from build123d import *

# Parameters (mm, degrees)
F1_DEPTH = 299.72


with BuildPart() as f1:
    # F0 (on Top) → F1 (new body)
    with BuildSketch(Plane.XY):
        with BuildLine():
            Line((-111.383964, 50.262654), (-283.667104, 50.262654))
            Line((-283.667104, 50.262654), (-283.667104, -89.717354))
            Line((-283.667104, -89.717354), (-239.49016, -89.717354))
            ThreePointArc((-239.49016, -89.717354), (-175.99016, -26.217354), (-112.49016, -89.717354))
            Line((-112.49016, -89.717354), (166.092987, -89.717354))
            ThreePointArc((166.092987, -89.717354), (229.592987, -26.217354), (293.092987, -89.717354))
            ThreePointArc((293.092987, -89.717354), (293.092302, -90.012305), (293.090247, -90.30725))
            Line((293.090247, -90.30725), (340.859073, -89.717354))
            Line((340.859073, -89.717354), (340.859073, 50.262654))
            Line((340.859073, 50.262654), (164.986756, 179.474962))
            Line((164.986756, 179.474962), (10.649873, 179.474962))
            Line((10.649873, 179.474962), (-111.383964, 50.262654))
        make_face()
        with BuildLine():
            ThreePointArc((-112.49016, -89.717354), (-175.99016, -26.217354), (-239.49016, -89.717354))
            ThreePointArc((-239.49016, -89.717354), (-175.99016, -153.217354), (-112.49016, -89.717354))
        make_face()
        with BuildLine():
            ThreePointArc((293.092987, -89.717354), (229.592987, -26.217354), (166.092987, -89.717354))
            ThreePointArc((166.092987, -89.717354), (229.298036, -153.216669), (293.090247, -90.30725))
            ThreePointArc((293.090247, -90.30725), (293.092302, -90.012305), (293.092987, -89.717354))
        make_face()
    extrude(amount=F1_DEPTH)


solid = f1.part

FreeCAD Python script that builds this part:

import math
import FreeCAD as App
import Part
import Sketcher

V = App.Vector
Q = App.Units.Quantity

doc = App.newDocument("Part")
body = doc.addObject("PartDesign::Body", "Body")

# Sketch on XY plane
sketch1 = body.newObject("Sketcher::SketchObject", "Sketch")
sketch1.AttachmentSupport = (doc.getObject("XY_Plane"), [""])
sketch1.MapMode = "FlatFace"
sketch1.addGeometry([
    Part.LineSegment(V(-111, 50, 0), V(-284, 50, 0)),  # 0
    Part.LineSegment(V(-284, 50, 0), V(-284, -90, 0)),  # 1
    Part.LineSegment(V(-284, -90, 0), V(-239, -90, 0)),  # 2
    Part.ArcOfCircle(Part.Circle(V(-176, -90, 0), V(0, 0, 1), 64), math.radians(180), math.radians(360)),  # 3
    Part.LineSegment(V(-112, -90, 0), V(166, -90, 0)),  # 4
    Part.ArcOfCircle(Part.Circle(V(230, -90, 0), V(0, 0, 1), 64), math.radians(-180), math.radians(-1)),  # 5
    Part.LineSegment(V(293, -90, 0), V(341, -90, 0)),  # 6
    Part.LineSegment(V(341, -90, 0), V(341, 50, 0)),  # 7
    Part.LineSegment(V(341, 50, 0), V(165, 179, 0)),  # 8
    Part.LineSegment(V(165, 179, 0), V(11, 179, 0)),  # 9
    Part.LineSegment(V(11, 179, 0), V(-111, 50, 0)),  # 10
], False)
sketch1.addConstraint([
    Sketcher.Constraint("Coincident", 0, 2, 1, 1),
    Sketcher.Constraint("Coincident", 1, 2, 2, 1),
    Sketcher.Constraint("Coincident", 2, 2, 3, 1),
    Sketcher.Constraint("Coincident", 3, 2, 4, 1),
    Sketcher.Constraint("Coincident", 4, 2, 5, 1),
    Sketcher.Constraint("Coincident", 5, 2, 6, 1),
    Sketcher.Constraint("Coincident", 6, 2, 7, 1),
    Sketcher.Constraint("Coincident", 7, 2, 8, 1),
    Sketcher.Constraint("Coincident", 8, 2, 9, 1),
    Sketcher.Constraint("Coincident", 9, 2, 10, 1),
    Sketcher.Constraint("Coincident", 10, 2, 0, 1),
    Sketcher.Constraint("Horizontal", 0),
    Sketcher.Constraint("Vertical", 1),
    Sketcher.Constraint("Horizontal", 2),
    Sketcher.Constraint("Horizontal", 4),
    Sketcher.Constraint("Vertical", 7),
    Sketcher.Constraint("Horizontal", 9),
    Sketcher.Constraint("Equal", 3, 5),
    Sketcher.Constraint("Horizontal", 3, 3, 5, 3),
    Sketcher.Constraint("Horizontal", 5, 3, 1, 2),
    Sketcher.Constraint("Horizontal", 2, 2, 3, 2),
    Sketcher.Constraint("Horizontal", 4, 2, 6, 2),
    Sketcher.Constraint("Horizontal", 0, 2, 7, 2),
    Sketcher.Constraint("Radius", 3, Q("2.5 in")),
    Sketcher.Constraint("DistanceX", 0, 2, 0, 1, 172.28314),
    Sketcher.Constraint("DistanceY", 1, 2, 1, 1, 139.980008),
    Sketcher.Constraint("Distance", 6, 47.772468),
    Sketcher.Constraint("Distance", 10, 177.730352),
    Sketcher.Constraint("DistanceX", 2, 1, 2, 2, 44.176944),
    Sketcher.Constraint("DistanceX", 4, 1, 4, 2, 278.583147),
    Sketcher.Constraint("DistanceX", 9, 2, 9, 1, 154.336883),
    Sketcher.Constraint("DistanceX", 3, 3, -1, 1, 175.99016),
    Sketcher.Constraint("DistanceY", 5, 2, -1, 1, 90.30725),
    Sketcher.Constraint("DistanceY", -1, 1, 8, 2, 179.474962),
    Sketcher.Constraint("DistanceY", 7, 2, 8, 2, 129.212308),
])
pad1 = body.newObject("PartDesign::Pad", "Pad")
pad1.Profile = sketch1
pad1.Length = Q("11.8 in")

doc.recompute()
